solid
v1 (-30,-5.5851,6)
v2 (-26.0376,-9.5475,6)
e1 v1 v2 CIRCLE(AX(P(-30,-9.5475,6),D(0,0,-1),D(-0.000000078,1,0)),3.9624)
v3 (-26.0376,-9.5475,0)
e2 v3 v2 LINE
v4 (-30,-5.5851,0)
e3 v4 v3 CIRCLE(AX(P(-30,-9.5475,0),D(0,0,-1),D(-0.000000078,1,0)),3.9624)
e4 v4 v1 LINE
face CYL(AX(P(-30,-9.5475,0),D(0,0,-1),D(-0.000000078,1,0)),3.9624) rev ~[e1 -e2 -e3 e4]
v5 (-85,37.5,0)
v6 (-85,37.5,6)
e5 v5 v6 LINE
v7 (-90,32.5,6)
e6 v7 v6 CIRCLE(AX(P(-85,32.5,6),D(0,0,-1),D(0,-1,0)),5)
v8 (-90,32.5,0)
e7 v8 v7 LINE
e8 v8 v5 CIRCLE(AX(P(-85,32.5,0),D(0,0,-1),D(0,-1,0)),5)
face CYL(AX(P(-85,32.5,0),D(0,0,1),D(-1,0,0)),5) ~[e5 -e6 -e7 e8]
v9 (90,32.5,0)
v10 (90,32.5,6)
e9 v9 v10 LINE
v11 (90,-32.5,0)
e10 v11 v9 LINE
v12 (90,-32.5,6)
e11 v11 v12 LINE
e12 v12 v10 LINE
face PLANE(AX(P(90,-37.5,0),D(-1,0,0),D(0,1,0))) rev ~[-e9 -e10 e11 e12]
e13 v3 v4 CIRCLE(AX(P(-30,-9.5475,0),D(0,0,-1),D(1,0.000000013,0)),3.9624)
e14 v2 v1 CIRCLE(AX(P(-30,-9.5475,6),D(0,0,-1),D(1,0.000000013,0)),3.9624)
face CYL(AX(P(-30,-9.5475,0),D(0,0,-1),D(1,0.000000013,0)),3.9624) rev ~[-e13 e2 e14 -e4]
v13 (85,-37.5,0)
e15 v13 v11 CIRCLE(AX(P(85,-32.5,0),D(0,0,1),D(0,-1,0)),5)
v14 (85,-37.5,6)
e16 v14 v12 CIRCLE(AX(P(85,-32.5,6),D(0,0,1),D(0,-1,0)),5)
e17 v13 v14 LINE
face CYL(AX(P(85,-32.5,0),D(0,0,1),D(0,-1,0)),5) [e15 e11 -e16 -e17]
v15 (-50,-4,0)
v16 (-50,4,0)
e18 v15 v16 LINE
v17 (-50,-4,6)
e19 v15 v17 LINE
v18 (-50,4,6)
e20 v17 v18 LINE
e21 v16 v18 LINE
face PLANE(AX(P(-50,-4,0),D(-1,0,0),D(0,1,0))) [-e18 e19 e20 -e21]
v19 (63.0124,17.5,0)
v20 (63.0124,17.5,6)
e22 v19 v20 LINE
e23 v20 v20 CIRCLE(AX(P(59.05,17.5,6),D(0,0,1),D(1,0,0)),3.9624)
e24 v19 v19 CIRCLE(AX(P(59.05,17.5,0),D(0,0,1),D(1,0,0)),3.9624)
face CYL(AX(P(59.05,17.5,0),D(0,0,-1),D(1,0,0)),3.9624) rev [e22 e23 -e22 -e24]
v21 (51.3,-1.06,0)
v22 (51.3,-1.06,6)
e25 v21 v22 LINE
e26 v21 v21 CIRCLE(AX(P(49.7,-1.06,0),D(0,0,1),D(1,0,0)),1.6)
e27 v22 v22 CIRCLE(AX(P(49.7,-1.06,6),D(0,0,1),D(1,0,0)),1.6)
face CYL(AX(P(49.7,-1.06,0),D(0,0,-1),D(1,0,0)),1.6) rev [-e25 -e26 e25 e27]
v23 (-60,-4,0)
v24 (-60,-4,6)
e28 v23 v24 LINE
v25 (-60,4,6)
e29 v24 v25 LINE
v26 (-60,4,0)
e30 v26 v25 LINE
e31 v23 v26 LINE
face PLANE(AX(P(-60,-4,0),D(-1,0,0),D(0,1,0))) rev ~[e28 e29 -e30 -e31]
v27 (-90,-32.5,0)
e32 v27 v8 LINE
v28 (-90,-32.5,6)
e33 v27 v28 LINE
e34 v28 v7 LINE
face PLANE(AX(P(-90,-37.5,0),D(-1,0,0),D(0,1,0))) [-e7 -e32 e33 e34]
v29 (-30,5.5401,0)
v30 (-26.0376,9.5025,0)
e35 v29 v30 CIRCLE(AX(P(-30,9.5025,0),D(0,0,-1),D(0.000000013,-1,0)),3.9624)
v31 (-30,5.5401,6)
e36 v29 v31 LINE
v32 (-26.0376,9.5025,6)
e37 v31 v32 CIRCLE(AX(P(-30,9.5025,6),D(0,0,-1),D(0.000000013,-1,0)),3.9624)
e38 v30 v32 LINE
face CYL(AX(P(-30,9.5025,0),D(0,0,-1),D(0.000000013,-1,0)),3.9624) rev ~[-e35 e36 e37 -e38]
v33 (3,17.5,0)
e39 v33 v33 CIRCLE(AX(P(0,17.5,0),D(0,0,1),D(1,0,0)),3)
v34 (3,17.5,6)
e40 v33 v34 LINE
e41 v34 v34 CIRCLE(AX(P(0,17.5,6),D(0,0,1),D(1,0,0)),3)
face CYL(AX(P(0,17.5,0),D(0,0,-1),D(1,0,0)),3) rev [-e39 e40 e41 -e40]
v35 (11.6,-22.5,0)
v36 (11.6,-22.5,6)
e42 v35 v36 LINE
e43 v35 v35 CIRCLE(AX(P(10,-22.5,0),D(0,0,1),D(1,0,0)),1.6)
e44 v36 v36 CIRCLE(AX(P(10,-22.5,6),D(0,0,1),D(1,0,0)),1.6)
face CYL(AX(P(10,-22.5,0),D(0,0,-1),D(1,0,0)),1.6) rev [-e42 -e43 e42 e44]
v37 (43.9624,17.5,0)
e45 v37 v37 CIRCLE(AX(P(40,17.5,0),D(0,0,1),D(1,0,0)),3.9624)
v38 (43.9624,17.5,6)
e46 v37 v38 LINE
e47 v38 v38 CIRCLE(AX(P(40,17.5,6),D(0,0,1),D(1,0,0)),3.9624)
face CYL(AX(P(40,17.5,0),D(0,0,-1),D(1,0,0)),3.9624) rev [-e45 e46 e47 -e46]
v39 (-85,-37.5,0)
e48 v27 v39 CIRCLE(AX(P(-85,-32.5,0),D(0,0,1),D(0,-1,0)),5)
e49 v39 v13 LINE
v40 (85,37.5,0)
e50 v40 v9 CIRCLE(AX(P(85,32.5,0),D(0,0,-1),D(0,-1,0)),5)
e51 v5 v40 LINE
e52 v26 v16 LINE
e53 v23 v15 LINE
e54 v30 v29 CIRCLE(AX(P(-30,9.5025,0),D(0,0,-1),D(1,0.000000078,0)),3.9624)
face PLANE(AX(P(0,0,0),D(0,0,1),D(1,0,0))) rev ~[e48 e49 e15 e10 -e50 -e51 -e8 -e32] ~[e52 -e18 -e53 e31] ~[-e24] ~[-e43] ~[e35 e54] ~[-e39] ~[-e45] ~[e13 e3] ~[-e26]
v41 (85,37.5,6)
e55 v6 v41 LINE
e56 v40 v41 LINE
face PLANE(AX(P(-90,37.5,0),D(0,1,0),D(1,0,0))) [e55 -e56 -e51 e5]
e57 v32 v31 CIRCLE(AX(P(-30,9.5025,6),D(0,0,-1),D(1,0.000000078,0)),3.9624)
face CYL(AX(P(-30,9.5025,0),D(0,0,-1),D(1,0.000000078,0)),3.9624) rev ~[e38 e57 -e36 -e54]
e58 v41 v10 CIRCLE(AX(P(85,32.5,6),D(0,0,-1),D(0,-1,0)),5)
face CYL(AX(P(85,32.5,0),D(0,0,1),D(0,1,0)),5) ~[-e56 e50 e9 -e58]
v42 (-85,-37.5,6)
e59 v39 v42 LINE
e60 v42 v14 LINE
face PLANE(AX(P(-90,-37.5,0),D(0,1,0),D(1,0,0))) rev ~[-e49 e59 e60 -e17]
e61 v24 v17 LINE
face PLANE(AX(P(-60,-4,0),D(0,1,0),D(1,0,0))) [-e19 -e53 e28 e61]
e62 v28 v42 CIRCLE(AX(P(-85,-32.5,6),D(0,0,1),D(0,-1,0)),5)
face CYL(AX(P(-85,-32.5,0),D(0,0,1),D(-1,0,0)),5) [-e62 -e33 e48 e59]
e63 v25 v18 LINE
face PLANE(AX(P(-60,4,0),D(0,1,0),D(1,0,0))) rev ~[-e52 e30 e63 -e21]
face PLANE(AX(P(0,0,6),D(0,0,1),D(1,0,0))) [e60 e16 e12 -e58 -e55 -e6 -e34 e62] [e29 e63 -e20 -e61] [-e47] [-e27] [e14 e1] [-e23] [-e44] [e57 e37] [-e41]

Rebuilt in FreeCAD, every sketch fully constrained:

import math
import FreeCAD as App
import Part
import Sketcher
from FreeCAD import Vector
Q = App.Units.Quantity


def edges_at(feature, points):
    """Names of the edges that pass closest to the given points."""
    edges = feature.Shape.Edges
    near = lambda p: min(range(len(edges)), key=lambda i: edges[i].distToShape(Part.Vertex(*p))[0])
    return sorted({f"Edge{near(p) + 1}" for p in points})

doc = App.newDocument("Part")
body = doc.addObject("PartDesign::Body", "Body")

sketch1 = body.newObject("Sketcher::SketchObject", "Sketch")
sketch1.AttachmentSupport = (doc.getObject("XY_Plane"), [""])
sketch1.MapMode = "FlatFace"
sketch1.addGeometry([
    Part.LineSegment(Vector(-90, 37.5, 0), Vector(-90, -37.5, 0)),
    Part.LineSegment(Vector(-90, -37.5, 0), Vector(90, -37.5, 0)),
    Part.LineSegment(Vector(90, -37.5, 0), Vector(90, 37.5, 0)),
    Part.LineSegment(Vector(90, 37.5, 0), Vector(-90, 37.5, 0)),
    Part.ArcOfCircle(Part.Circle(Vector(-30, -9.5, 0), Vector(0, 0, 1), 4), math.radians(0), math.radians(90)),
    Part.ArcOfCircle(Part.Circle(Vector(-30, -9.5, 0), Vector(0, 0, 1), 4), math.radians(90), math.radians(360)),
    Part.Circle(Vector(10, -22.5, 0), Vector(0, 0, 1), 1.6),
    Part.LineSegment(Vector(-50, -4, 0), Vector(-60, -4, 0)),
    Part.LineSegment(Vector(-60, -4, 0), Vector(-60, 4, 0)),
    Part.LineSegment(Vector(-60, 4, 0), Vector(-50, 4, 0)),
    Part.LineSegment(Vector(-50, 4, 0), Vector(-50, -4, 0)),
    Part.ArcOfCircle(Part.Circle(Vector(-30, 9.5, 0), Vector(0, 0, 1), 4), math.radians(-90), math.radians(0)),
    Part.ArcOfCircle(Part.Circle(Vector(-30, 9.5, 0), Vector(0, 0, 1), 4), math.radians(0), math.radians(270)),
    Part.Circle(Vector(0, 17.5, 0), Vector(0, 0, 1), 3),
    Part.Circle(Vector(49.7, -1.1, 0), Vector(0, 0, 1), 1.6),
    Part.Circle(Vector(40, 17.5, 0), Vector(0, 0, 1), 4),
    Part.Circle(Vector(59, 17.5, 0), Vector(0, 0, 1), 4),
], False)
sketch1.addConstraint([
    Sketcher.Constraint("Coincident", 0, 2, 1, 1),
    Sketcher.Constraint("Coincident", 1, 2, 2, 1),
    Sketcher.Constraint("Coincident", 2, 2, 3, 1),
    Sketcher.Constraint("Coincident", 3, 2, 0, 1),
    Sketcher.Constraint("Tangent", 4, 1, 5, 2),
    Sketcher.Constraint("Coincident", 5, 1, 4, 2),
    Sketcher.Constraint("Coincident", 7, 2, 8, 1),
    Sketcher.Constraint("Coincident", 8, 2, 9, 1),
    Sketcher.Constraint("Coincident", 9, 2, 10, 1),
    Sketcher.Constraint("Coincident", 10, 2, 7, 1),
    Sketcher.Constraint("Tangent", 11, 1, 12, 2),
    Sketcher.Constraint("Coincident", 12, 1, 11, 2),
    Sketcher.Constraint("Vertical", 0),
    Sketcher.Constraint("Horizontal", 1),
    Sketcher.Constraint("Vertical", 2),
    Sketcher.Constraint("Horizontal", 3),
    Sketcher.Constraint("Horizontal", 7),
    Sketcher.Constraint("Vertical", 8),
    Sketcher.Constraint("Horizontal", 9),
    Sketcher.Constraint("Vertical", 10),
    Sketcher.Constraint("Equal", 5, 11),
    Sketcher.Constraint("Equal", 6, 14),
    Sketcher.Constraint("Equal", 12, 15),
    Sketcher.Constraint("Equal", 15, 16),
    Sketcher.Constraint("Symmetric", 0, 2, 2, 2, -1, 1),
    Sketcher.Constraint("PointOnObject", 13, 3, -2),
    Sketcher.Constraint("Horizontal", 13, 3, 15, 3),
    Sketcher.Constraint("Horizontal", 15, 3, 16, 3),
    Sketcher.Constraint("Horizontal", 5, 3, 4, 1),
    Sketcher.Constraint("Horizontal", 11, 3, 12, 1),
    Sketcher.Constraint("Vertical", 5, 3, 11, 3),
    Sketcher.Constraint("Vertical", 12, 3, 5, 1),
    Sketcher.Constraint("Vertical", 5, 1, 11, 1),
    Sketcher.Constraint("Diameter", 13, Q("6 mm")),
    Sketcher.Constraint("Diameter", 6, Q("3.2 mm")),
    Sketcher.Constraint("DistanceX", 1, 1, 1, 2, Q("180 mm")),
    Sketcher.Constraint("DistanceX", 7, 2, 7, 1, Q("10 mm")),
    Sketcher.Constraint("DistanceY", 0, 2, 0, 1, Q("75 mm")),
    Sketcher.Constraint("DistanceY", 8, 1, 8, 2, Q("8 mm")),
    Sketcher.Constraint("DistanceX", 4, 3, -1, 1, Q("30 mm")),
    Sketcher.Constraint("DistanceX", -1, 1, 6, 3, Q("10 mm")),
    Sketcher.Constraint("DistanceX", -1, 1, 15, 3, Q("40 mm")),
    Sketcher.Constraint("DistanceX", 7, 2, -1, 1, Q("60 mm")),
    Sketcher.Constraint("DistanceY", 7, 2, -1, 1, Q("4 mm")),
    Sketcher.Constraint("DistanceY", 6, 3, 13, 3, Q("40 mm")),
    Sketcher.Constraint("DistanceY", 0, 2, 6, 3, Q("15 mm")),
    Sketcher.Constraint("Diameter", 15, Q("7.9248 mm")),
    Sketcher.Constraint("DistanceX", -1, 1, 14, 3, Q("49.7 mm")),
    Sketcher.Constraint("DistanceY", 14, 3, -1, 1, Q("1.06 mm")),
    Sketcher.Constraint("DistanceX", -1, 1, 16, 3, Q("59.05 mm")),
    Sketcher.Constraint("DistanceY", 4, 3, 11, 3, Q("19.049999 mm")),
    Sketcher.Constraint("DistanceY", 4, 3, -1, 1, Q("9.5475 mm")),
])
pad1 = body.newObject("PartDesign::Pad", "Pad")
pad1.Profile = sketch1
pad1.Length = 6
doc.recompute()

fillet = body.newObject("PartDesign::Fillet", "Fillet")
fillet.Base = (pad1, edges_at(pad1, [
    (-90, 37.5, 3),
    (90, 37.5, 3),
    (90, -37.5, 3),
    (-90, -37.5, 3),
]))
fillet.Radius = 5

doc.recompute()
